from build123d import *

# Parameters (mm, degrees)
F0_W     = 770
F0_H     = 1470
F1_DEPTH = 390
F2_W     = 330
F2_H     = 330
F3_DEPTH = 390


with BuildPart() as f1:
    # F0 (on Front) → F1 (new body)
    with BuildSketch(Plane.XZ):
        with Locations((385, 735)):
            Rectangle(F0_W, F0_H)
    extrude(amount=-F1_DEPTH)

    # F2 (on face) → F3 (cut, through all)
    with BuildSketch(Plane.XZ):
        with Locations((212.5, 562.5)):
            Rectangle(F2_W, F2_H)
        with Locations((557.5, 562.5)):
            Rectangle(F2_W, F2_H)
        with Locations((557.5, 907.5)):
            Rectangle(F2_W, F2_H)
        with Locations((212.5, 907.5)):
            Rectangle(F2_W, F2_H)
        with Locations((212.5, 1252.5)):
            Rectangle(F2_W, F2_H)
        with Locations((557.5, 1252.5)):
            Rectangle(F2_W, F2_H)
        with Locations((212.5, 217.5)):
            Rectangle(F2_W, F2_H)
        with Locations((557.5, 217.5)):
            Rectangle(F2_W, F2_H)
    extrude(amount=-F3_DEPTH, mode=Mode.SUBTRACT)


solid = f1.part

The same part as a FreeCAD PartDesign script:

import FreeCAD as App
import Part
import Sketcher
from FreeCAD import Vector
Q = App.Units.Quantity


def add_polygon(sketch, points):
    """Adds a closed chain of lines whose ends are joined by coincident constraints."""
    first, n = sketch.GeometryCount, len(points)
    for a, b in zip(points, points[1:] + points[:1]):
        sketch.addGeometry(Part.LineSegment(App.Vector(*a, 0), App.Vector(*b, 0)), False)
    for i in range(n):
        sketch.addConstraint(Sketcher.Constraint("Coincident", first + i, 2, first + (i + 1) % n, 1))

doc = App.newDocument("Part")
body = doc.addObject("PartDesign::Body", "Body")

# Sketch on XZ plane
sketch1 = body.newObject("Sketcher::SketchObject", "Sketch")
sketch1.AttachmentSupport = (doc.getObject("XZ_Plane"), [""])
sketch1.MapMode = "FlatFace"
add_polygon(sketch1, [(0, 1470), (0, 0), (770, 0), (770, 1470)])  # lines 0-3
sketch1.addConstraint([
    Sketcher.Constraint("Vertical", 0),
    Sketcher.Constraint("Horizontal", 1),
    Sketcher.Constraint("Vertical", 2),
    Sketcher.Constraint("Horizontal", 3),
    Sketcher.Constraint("Coincident", 0, 2, -1, 1),
    Sketcher.Constraint("DistanceX", 1, 1, 1, 2, Q("770 mm")),
    Sketcher.Constraint("DistanceY", 0, 2, 0, 1, Q("1470 mm")),
])
pad1 = body.newObject("PartDesign::Pad", "Pad")
pad1.Profile = sketch1
pad1.Length = 390
pad1.Reversed = True

# Sketch on XZ plane
sketch2 = body.newObject("Sketcher::SketchObject", "Sketch001")
sketch2.AttachmentSupport = (doc.getObject("XZ_Plane"), [""])
sketch2.MapMode = "FlatFace"
add_polygon(sketch2, [(48, 728), (48, 398), (378, 398), (378, 728)])  # lines 0-3
add_polygon(sketch2, [(392, 728), (392, 398), (722, 398), (722, 728)])  # lines 4-7
add_polygon(sketch2, [(392, 1072), (392, 742), (722, 742), (722, 1072)])  # lines 8-11
add_polygon(sketch2, [(48, 1072), (48, 742), (378, 742), (378, 1072)])  # lines 12-15
add_polygon(sketch2, [(48, 1418), (48, 1088), (378, 1088), (378, 1418)])  # lines 16-19
add_polygon(sketch2, [(392, 1418), (392, 1088), (722, 1088), (722, 1418)])  # lines 20-23
add_polygon(sketch2, [(48, 382), (48, 52), (378, 52), (378, 382)])  # lines 24-27
add_polygon(sketch2, [(392, 382), (392, 52), (722, 52), (722, 382)])  # lines 28-31
sketch2.addConstraint([
    Sketcher.Constraint("Vertical", 0),
    Sketcher.Constraint("Horizontal", 1),
    Sketcher.Constraint("Vertical", 2),
    Sketcher.Constraint("Horizontal", 3),
    Sketcher.Constraint("Vertical", 4),
    Sketcher.Constraint("Horizontal", 5),
    Sketcher.Constraint("Vertical", 6),
    Sketcher.Constraint("Horizontal", 7),
    Sketcher.Constraint("Vertical", 8),
    Sketcher.Constraint("Horizontal", 9),
    Sketcher.Constraint("Vertical", 10),
    Sketcher.Constraint("Horizontal", 11),
    Sketcher.Constraint("Vertical", 12),
    Sketcher.Constraint("Horizontal", 13),
    Sketcher.Constraint("Vertical", 14),
    Sketcher.Constraint("Horizontal", 15),
    Sketcher.Constraint("Vertical", 16),
    Sketcher.Constraint("Horizontal", 17),
    Sketcher.Constraint("Vertical", 18),
    Sketcher.Constraint("Horizontal", 19),
    Sketcher.Constraint("Vertical", 20),
    Sketcher.Constraint("Horizontal", 21),
    Sketcher.Constraint("Vertical", 22),
    Sketcher.Constraint("Horizontal", 23),
    Sketcher.Constraint("Vertical", 24),
    Sketcher.Constraint("Horizontal", 25),
    Sketcher.Constraint("Vertical", 26),
    Sketcher.Constraint("Horizontal", 27),
    Sketcher.Constraint("Vertical", 28),
    Sketcher.Constraint("Horizontal", 29),
    Sketcher.Constraint("Vertical", 30),
    Sketcher.Constraint("Horizontal", 31),
    Sketcher.Constraint("Horizontal", 1, 2, 4, 2),
    Sketcher.Constraint("Horizontal", 3, 2, 6, 2),
    Sketcher.Constraint("Horizontal", 9, 2, 12, 2),
    Sketcher.Constraint("Horizontal", 11, 2, 14, 2),
    Sketcher.Constraint("Horizontal", 17, 2, 20, 2),
    Sketcher.Constraint("Horizontal", 19, 2, 22, 2),
    Sketcher.Constraint("Horizontal", 25, 2, 28, 2),
    Sketcher.Constraint("Horizontal", 27, 2, 30, 2),
    Sketcher.Constraint("Vertical", 7, 2, 8, 2),
    Sketcher.Constraint("Vertical", 6, 2, 9, 2),
    Sketcher.Constraint("Vertical", 3, 2, 12, 2),
    Sketcher.Constraint("Vertical", 2, 2, 13, 2),
    Sketcher.Constraint("Vertical", 15, 2, 16, 2),
    Sketcher.Constraint("Vertical", 14, 2, 17, 2),
    Sketcher.Constraint("Vertical", 11, 2, 20, 2),
    Sketcher.Constraint("Vertical", 10, 2, 21, 2),
    Sketcher.Constraint("Vertical", 19, 2, 24, 2),
    Sketcher.Constraint("Vertical", 18, 2, 25, 2),
    Sketcher.Constraint("Vertical", 23, 2, 28, 2),
    Sketcher.Constraint("Vertical", 22, 2, 29, 2),
    Sketcher.Constraint("Equal", 3, 5),
    Sketcher.Constraint("Equal", 31, 0),
    Sketcher.Constraint("Equal", 6, 8),
    Sketcher.Constraint("Equal", 14, 16),
    Sketcher.Constraint("Equal", 22, 24),
    Sketcher.Constraint("DistanceX", 1, 1, 1, 2, Q("330 mm")),
    Sketcher.Constraint("DistanceX", 1, 2, 4, 2, Q("15 mm")),
    Sketcher.Constraint("DistanceY", 7, 2, 8, 2, Q("15 mm")),
    Sketcher.Constraint("DistanceY", 15, 2, 16, 2, Q("15 mm")),
    Sketcher.Constraint("DistanceY", 24, 2, 0, 2, Q("345 mm")),
    Sketcher.Constraint("DistanceX", -1, 1, 0, 2, Q("47.5 mm")),
    Sketcher.Constraint("DistanceY", -1, 1, 0, 2, Q("397.5 mm")),
])
pocket1 = body.newObject("PartDesign::Pocket", "Pocket")
pocket1.Profile = sketch2
pocket1.Type = "ThroughAll"

doc.recompute()
